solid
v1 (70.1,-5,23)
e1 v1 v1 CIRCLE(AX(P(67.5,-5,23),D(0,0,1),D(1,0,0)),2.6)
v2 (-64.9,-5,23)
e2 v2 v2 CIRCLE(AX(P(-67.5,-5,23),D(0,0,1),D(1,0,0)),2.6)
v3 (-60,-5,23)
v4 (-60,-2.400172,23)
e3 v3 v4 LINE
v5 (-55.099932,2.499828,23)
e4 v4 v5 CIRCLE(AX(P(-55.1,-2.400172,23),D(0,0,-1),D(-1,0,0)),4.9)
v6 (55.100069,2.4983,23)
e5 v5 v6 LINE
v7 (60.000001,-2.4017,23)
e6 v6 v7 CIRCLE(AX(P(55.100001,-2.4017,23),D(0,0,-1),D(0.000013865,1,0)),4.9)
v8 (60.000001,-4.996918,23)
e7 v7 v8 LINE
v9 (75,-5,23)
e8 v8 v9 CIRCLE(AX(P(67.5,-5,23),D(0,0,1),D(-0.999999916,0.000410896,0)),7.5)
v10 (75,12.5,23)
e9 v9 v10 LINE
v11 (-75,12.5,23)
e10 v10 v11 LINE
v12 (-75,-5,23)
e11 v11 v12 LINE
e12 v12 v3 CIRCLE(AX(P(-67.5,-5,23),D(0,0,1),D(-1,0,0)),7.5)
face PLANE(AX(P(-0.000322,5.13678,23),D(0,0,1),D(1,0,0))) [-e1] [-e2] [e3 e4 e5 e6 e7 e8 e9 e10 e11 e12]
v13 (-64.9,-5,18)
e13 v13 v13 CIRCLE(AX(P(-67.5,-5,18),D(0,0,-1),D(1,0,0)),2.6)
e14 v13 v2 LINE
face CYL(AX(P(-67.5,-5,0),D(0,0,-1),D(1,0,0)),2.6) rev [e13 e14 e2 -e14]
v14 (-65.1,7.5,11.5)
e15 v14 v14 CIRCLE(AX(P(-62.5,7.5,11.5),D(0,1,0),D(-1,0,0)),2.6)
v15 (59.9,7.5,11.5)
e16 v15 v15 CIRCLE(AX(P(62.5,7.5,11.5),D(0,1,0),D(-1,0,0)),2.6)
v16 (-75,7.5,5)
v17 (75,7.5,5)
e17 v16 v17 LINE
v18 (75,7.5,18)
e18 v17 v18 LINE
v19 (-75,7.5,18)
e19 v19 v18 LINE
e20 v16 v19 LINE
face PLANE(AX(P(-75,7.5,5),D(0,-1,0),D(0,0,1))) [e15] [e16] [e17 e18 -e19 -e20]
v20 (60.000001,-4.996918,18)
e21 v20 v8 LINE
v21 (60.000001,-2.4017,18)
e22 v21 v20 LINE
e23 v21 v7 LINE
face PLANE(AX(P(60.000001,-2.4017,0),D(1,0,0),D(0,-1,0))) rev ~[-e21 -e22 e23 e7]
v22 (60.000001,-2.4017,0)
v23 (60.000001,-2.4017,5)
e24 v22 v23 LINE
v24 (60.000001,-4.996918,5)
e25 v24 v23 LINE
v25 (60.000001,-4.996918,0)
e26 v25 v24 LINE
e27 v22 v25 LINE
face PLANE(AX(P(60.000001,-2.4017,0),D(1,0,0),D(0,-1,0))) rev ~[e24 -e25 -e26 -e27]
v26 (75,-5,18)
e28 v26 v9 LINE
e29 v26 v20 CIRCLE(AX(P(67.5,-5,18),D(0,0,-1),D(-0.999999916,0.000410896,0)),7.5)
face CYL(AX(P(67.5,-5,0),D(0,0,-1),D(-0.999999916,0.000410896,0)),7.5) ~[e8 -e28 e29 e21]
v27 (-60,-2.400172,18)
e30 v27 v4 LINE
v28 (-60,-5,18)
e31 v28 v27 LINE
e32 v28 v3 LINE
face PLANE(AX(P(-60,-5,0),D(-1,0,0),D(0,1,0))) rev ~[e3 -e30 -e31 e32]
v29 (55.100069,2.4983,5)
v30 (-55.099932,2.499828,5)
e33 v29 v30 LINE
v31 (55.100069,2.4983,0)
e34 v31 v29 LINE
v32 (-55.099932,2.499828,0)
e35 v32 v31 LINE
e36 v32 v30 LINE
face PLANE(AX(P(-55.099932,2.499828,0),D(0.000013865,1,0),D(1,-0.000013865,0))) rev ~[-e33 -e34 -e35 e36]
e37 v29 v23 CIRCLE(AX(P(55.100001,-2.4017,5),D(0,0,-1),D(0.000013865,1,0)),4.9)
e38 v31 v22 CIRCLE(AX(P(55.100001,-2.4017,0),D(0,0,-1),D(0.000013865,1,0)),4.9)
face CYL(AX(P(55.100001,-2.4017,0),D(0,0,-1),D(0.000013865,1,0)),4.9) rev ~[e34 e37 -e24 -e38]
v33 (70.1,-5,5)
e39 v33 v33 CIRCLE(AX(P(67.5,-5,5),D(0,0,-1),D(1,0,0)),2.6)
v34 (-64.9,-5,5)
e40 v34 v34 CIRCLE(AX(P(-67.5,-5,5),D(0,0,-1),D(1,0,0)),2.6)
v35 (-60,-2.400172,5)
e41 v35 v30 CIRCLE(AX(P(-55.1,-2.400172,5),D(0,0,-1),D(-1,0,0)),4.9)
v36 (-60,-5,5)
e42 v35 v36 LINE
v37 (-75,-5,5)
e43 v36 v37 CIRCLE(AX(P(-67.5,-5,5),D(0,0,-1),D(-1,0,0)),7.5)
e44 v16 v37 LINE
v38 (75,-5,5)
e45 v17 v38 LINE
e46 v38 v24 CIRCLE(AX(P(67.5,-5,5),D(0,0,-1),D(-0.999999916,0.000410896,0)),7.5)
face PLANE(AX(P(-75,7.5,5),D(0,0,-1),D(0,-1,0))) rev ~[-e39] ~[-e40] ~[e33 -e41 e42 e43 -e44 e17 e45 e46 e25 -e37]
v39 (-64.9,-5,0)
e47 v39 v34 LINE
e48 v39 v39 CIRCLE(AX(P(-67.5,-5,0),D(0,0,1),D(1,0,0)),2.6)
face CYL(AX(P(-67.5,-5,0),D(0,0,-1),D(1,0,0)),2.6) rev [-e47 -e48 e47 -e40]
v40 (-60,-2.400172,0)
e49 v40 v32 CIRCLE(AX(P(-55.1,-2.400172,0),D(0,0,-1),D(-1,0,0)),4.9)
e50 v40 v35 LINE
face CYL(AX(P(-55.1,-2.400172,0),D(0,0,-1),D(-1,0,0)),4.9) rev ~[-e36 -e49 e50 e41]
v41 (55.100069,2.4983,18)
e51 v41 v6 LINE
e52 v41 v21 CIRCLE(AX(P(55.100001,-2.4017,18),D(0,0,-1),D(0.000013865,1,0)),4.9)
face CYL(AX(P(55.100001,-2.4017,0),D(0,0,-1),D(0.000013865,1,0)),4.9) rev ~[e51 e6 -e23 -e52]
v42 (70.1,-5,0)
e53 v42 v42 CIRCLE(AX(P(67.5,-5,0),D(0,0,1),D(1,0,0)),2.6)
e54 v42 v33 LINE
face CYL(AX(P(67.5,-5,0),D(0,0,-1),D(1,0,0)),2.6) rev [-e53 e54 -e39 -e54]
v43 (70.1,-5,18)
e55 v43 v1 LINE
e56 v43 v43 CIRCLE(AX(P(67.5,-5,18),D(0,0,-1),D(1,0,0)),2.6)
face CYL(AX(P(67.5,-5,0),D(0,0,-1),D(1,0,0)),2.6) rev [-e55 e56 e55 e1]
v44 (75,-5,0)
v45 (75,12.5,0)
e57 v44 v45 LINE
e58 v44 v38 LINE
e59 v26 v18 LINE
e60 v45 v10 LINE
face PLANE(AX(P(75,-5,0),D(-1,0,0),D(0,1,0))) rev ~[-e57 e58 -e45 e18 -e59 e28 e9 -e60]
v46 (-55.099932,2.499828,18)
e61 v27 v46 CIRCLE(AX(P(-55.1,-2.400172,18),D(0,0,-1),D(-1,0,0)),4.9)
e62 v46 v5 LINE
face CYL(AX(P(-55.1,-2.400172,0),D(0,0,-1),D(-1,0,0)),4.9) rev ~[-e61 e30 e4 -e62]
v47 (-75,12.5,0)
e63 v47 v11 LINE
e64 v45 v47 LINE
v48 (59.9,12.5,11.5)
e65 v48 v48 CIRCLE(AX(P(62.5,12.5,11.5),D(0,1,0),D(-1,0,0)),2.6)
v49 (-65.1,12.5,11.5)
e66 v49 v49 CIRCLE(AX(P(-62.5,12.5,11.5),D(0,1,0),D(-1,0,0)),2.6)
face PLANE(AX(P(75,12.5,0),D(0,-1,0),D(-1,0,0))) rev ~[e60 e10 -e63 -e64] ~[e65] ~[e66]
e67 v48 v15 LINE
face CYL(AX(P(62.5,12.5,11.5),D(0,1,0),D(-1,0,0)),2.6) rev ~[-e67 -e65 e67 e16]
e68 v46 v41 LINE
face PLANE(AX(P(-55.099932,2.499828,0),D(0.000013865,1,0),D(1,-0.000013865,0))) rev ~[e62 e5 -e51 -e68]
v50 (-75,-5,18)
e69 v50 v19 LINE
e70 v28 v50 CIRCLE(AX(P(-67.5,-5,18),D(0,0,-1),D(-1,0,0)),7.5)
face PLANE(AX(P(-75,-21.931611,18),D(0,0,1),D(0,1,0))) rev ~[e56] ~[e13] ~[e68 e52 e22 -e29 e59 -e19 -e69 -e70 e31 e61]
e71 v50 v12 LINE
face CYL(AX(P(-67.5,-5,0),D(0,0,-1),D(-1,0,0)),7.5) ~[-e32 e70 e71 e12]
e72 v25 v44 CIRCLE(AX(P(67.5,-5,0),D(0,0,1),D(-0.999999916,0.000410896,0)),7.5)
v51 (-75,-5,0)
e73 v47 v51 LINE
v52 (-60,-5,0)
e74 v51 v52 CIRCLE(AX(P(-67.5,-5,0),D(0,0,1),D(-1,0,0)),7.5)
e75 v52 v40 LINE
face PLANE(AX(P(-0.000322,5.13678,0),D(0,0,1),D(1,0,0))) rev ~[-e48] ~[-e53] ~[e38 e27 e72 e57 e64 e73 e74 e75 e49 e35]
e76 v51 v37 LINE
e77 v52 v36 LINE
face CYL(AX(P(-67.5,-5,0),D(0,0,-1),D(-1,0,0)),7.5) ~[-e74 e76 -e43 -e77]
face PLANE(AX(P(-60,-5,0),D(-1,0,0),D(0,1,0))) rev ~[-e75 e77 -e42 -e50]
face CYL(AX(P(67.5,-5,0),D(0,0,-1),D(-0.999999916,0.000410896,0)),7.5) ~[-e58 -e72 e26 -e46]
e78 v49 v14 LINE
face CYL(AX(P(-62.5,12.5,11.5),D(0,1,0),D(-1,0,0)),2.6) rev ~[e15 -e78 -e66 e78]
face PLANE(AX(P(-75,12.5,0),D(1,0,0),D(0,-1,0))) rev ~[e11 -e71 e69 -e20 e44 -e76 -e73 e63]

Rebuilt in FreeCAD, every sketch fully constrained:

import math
import FreeCAD as App
import Part
import Sketcher
from FreeCAD import Vector

doc = App.newDocument("Part")
body = doc.addObject("PartDesign::Body", "Body")

# Sketch on XY plane
sketch1 = body.newObject("Sketcher::SketchObject", "Sketch")
sketch1.AttachmentSupport = (doc.getObject("XY_Plane"), [""])
sketch1.MapMode = "FlatFace"
sketch1.addGeometry(Part.LineSegment(Vector(75, -5, 0), Vector(75, 12.5, 0)), False)
sketch1.addGeometry(Part.LineSegment(Vector(75, 12.5, 0), Vector(-75, 12.5, 0)), False)
sketch1.addGeometry(Part.LineSegment(Vector(-75, 12.5, 0), Vector(-75, -5, 0)), False)
sketch1.addGeometry(Part.ArcOfCircle(Part.Circle(Vector(-67.5, -5, 0), Vector(0, 0, 1), 7.5), math.radians(180), math.radians(360)), False)
sketch1.addGeometry(Part.LineSegment(Vector(-60, -5, 0), Vector(-60, -2.4, 0)), False)
sketch1.addGeometry(Part.ArcOfCircle(Part.Circle(Vector(-55.1, -2.4, 0), Vector(0, 0, 1), 4.9), math.radians(90), math.radians(180)), False)
sketch1.addGeometry(Part.LineSegment(Vector(-55.1, 2.5, 0), Vector(55.1, 2.5, 0)), False)
sketch1.addGeometry(Part.ArcOfCircle(Part.Circle(Vector(55.1, -2.4, 0), Vector(0, 0, 1), 4.9), math.radians(0), math.radians(90)), False)
sketch1.addGeometry(Part.LineSegment(Vector(60, -2.4, 0), Vector(60, -5, 0)), False)
sketch1.addGeometry(Part.ArcOfCircle(Part.Circle(Vector(67.5, -5, 0), Vector(0, 0, 1), 7.5), math.radians(180), math.radians(360)), False)
sketch1.addGeometry(Part.Circle(Vector(-67.5, -5, 0), Vector(0, 0, 1), 2.6), False)
sketch1.addGeometry(Part.Circle(Vector(67.5, -5, 0), Vector(0, 0, 1), 2.6), False)
sketch1.addConstraint(Sketcher.Constraint("Coincident", 0, 2, 1, 1))
sketch1.addConstraint(Sketcher.Constraint("Coincident", 1, 2, 2, 1))
sketch1.addConstraint(Sketcher.Constraint("Tangent", 2, 2, 3, 1))
sketch1.addConstraint(Sketcher.Constraint("Tangent", 3, 2, 4, 1))
sketch1.addConstraint(Sketcher.Constraint("Tangent", 4, 2, 5, 2))
sketch1.addConstraint(Sketcher.Constraint("Tangent", 5, 1, 6, 1))
sketch1.addConstraint(Sketcher.Constraint("Tangent", 6, 2, 7, 2))
sketch1.addConstraint(Sketcher.Constraint("Tangent", 7, 1, 8, 1))
sketch1.addConstraint(Sketcher.Constraint("Coincident", 8, 2, 9, 1))
sketch1.addConstraint(Sketcher.Constraint("Tangent", 9, 2, 0, 1))
sketch1.addConstraint(Sketcher.Constraint("Vertical", 0))
sketch1.addConstraint(Sketcher.Constraint("Horizontal", 1))
sketch1.addConstraint(Sketcher.Constraint("Vertical", 2))
sketch1.addConstraint(Sketcher.Constraint("Vertical", 4))
sketch1.addConstraint(Sketcher.Constraint("Vertical", 8))
sketch1.addConstraint(Sketcher.Constraint("Coincident", 10, 3, 3, 3))
sketch1.addConstraint(Sketcher.Constraint("Coincident", 11, 3, 9, 3))
sketch1.addConstraint(Sketcher.Constraint("Equal", 5, 7))
sketch1.addConstraint(Sketcher.Constraint("Equal", 3, 9))
sketch1.addConstraint(Sketcher.Constraint("Equal", 10, 11))
sketch1.addConstraint(Sketcher.Constraint("Symmetric", 3, 3, 9, 3, -2))
sketch1.addConstraint(Sketcher.Constraint("Diameter", 10, 5.2))
sketch1.addConstraint(Sketcher.Constraint("Radius", 3, 7.5))
sketch1.addConstraint(Sketcher.Constraint("Radius", 5, 4.9))
sketch1.addConstraint(Sketcher.Constraint("DistanceX", 1, 2, 1, 1, 150.0))
sketch1.addConstraint(Sketcher.Constraint("DistanceY", 0, 1, 0, 2, 17.5))
sketch1.addConstraint(Sketcher.Constraint("DistanceY", 3, 3, -1, 1, 5.0))
sketch1.addConstraint(Sketcher.Constraint("DistanceY", 4, 1, 4, 2, 2.599828))
sketch1.addConstraint(Sketcher.Constraint("DistanceY", 8, 2, 8, 1, 2.595218))
sketch1.addConstraint(Sketcher.Constraint("DistanceY", 7, 3, -1, 1, 2.4017))
pad1 = body.newObject("PartDesign::Pad", "Pad")
pad1.Profile = sketch1
pad1.Length = 23

# Sketch on YZ plane
sketch2 = body.newObject("Sketcher::SketchObject", "Sketch001")
sketch2.AttachmentSupport = (doc.getObject("YZ_Plane"), [""])
sketch2.MapMode = "FlatFace"
sketch2.AttachmentOffset = App.Placement(Vector(0, 0, -75), App.Rotation())
sketch2.addGeometry(Part.LineSegment(Vector(8, 18, 0), Vector(8, 5, 0)), False)
sketch2.addGeometry(Part.LineSegment(Vector(8, 5, 0), Vector(-22, 5, 0)), False)
sketch2.addGeometry(Part.LineSegment(Vector(-22, 5, 0), Vector(-22, 18, 0)), False)
sketch2.addGeometry(Part.LineSegment(Vector(-22, 18, 0), Vector(8, 18, 0)), False)
sketch2.addConstraint(Sketcher.Constraint("Coincident", 0, 2, 1, 1))
sketch2.addConstraint(Sketcher.Constraint("Coincident", 1, 2, 2, 1))
sketch2.addConstraint(Sketcher.Constraint("Coincident", 2, 2, 3, 1))
sketch2.addConstraint(Sketcher.Constraint("Coincident", 3, 2, 0, 1))
sketch2.addConstraint(Sketcher.Constraint("Vertical", 0))
sketch2.addConstraint(Sketcher.Constraint("Horizontal", 1))
sketch2.addConstraint(Sketcher.Constraint("Vertical", 2))
sketch2.addConstraint(Sketcher.Constraint("Horizontal", 3))
sketch2.addConstraint(Sketcher.Constraint("DistanceY", 0, 2, 0, 1, 13.0))
sketch2.addConstraint(Sketcher.Constraint("DistanceY", -1, 1, 0, 2, 5.0))
sketch2.addConstraint(Sketcher.Constraint("DistanceX", -1, 1, 0, 2, 7.5))
sketch2.addConstraint(Sketcher.Constraint("DistanceX", 1, 2, 1, 1, 29.431611))
pocket1 = body.newObject("PartDesign::Pocket", "Pocket")
pocket1.Profile = sketch2
pocket1.Type = "ThroughAll"
pocket1.Reversed = True

# Sketch on XZ plane
sketch3 = body.newObject("Sketcher::SketchObject", "Sketch002")
sketch3.AttachmentSupport = (doc.getObject("XZ_Plane"), [""])
sketch3.MapMode = "FlatFace"
sketch3.AttachmentOffset = App.Placement(Vector(0, 0, -12.5), App.Rotation())
sketch3.addGeometry(Part.Circle(Vector(-62.5, 11.5, 0), Vector(0, 0, 1), 2.6), False)
sketch3.addGeometry(Part.Circle(Vector(62.5, 11.5, 0), Vector(0, 0, 1), 2.6), False)
sketch3.addConstraint(Sketcher.Constraint("Equal", 0, 1))
sketch3.addConstraint(Sketcher.Constraint("Symmetric", 0, 3, 1, 3, -2))
sketch3.addConstraint(Sketcher.Constraint("Diameter", 0, 5.2))
sketch3.addConstraint(Sketcher.Constraint("DistanceX", 0, 3, 1, 3, 125.0))
sketch3.addConstraint(Sketcher.Constraint("DistanceY", -1, 1, 0, 3, 11.5))
pocket2 = body.newObject("PartDesign::Pocket", "Pocket001")
pocket2.Profile = sketch3
pocket2.Type = "ThroughAll"
pocket2.Reversed = True

doc.recompute()
